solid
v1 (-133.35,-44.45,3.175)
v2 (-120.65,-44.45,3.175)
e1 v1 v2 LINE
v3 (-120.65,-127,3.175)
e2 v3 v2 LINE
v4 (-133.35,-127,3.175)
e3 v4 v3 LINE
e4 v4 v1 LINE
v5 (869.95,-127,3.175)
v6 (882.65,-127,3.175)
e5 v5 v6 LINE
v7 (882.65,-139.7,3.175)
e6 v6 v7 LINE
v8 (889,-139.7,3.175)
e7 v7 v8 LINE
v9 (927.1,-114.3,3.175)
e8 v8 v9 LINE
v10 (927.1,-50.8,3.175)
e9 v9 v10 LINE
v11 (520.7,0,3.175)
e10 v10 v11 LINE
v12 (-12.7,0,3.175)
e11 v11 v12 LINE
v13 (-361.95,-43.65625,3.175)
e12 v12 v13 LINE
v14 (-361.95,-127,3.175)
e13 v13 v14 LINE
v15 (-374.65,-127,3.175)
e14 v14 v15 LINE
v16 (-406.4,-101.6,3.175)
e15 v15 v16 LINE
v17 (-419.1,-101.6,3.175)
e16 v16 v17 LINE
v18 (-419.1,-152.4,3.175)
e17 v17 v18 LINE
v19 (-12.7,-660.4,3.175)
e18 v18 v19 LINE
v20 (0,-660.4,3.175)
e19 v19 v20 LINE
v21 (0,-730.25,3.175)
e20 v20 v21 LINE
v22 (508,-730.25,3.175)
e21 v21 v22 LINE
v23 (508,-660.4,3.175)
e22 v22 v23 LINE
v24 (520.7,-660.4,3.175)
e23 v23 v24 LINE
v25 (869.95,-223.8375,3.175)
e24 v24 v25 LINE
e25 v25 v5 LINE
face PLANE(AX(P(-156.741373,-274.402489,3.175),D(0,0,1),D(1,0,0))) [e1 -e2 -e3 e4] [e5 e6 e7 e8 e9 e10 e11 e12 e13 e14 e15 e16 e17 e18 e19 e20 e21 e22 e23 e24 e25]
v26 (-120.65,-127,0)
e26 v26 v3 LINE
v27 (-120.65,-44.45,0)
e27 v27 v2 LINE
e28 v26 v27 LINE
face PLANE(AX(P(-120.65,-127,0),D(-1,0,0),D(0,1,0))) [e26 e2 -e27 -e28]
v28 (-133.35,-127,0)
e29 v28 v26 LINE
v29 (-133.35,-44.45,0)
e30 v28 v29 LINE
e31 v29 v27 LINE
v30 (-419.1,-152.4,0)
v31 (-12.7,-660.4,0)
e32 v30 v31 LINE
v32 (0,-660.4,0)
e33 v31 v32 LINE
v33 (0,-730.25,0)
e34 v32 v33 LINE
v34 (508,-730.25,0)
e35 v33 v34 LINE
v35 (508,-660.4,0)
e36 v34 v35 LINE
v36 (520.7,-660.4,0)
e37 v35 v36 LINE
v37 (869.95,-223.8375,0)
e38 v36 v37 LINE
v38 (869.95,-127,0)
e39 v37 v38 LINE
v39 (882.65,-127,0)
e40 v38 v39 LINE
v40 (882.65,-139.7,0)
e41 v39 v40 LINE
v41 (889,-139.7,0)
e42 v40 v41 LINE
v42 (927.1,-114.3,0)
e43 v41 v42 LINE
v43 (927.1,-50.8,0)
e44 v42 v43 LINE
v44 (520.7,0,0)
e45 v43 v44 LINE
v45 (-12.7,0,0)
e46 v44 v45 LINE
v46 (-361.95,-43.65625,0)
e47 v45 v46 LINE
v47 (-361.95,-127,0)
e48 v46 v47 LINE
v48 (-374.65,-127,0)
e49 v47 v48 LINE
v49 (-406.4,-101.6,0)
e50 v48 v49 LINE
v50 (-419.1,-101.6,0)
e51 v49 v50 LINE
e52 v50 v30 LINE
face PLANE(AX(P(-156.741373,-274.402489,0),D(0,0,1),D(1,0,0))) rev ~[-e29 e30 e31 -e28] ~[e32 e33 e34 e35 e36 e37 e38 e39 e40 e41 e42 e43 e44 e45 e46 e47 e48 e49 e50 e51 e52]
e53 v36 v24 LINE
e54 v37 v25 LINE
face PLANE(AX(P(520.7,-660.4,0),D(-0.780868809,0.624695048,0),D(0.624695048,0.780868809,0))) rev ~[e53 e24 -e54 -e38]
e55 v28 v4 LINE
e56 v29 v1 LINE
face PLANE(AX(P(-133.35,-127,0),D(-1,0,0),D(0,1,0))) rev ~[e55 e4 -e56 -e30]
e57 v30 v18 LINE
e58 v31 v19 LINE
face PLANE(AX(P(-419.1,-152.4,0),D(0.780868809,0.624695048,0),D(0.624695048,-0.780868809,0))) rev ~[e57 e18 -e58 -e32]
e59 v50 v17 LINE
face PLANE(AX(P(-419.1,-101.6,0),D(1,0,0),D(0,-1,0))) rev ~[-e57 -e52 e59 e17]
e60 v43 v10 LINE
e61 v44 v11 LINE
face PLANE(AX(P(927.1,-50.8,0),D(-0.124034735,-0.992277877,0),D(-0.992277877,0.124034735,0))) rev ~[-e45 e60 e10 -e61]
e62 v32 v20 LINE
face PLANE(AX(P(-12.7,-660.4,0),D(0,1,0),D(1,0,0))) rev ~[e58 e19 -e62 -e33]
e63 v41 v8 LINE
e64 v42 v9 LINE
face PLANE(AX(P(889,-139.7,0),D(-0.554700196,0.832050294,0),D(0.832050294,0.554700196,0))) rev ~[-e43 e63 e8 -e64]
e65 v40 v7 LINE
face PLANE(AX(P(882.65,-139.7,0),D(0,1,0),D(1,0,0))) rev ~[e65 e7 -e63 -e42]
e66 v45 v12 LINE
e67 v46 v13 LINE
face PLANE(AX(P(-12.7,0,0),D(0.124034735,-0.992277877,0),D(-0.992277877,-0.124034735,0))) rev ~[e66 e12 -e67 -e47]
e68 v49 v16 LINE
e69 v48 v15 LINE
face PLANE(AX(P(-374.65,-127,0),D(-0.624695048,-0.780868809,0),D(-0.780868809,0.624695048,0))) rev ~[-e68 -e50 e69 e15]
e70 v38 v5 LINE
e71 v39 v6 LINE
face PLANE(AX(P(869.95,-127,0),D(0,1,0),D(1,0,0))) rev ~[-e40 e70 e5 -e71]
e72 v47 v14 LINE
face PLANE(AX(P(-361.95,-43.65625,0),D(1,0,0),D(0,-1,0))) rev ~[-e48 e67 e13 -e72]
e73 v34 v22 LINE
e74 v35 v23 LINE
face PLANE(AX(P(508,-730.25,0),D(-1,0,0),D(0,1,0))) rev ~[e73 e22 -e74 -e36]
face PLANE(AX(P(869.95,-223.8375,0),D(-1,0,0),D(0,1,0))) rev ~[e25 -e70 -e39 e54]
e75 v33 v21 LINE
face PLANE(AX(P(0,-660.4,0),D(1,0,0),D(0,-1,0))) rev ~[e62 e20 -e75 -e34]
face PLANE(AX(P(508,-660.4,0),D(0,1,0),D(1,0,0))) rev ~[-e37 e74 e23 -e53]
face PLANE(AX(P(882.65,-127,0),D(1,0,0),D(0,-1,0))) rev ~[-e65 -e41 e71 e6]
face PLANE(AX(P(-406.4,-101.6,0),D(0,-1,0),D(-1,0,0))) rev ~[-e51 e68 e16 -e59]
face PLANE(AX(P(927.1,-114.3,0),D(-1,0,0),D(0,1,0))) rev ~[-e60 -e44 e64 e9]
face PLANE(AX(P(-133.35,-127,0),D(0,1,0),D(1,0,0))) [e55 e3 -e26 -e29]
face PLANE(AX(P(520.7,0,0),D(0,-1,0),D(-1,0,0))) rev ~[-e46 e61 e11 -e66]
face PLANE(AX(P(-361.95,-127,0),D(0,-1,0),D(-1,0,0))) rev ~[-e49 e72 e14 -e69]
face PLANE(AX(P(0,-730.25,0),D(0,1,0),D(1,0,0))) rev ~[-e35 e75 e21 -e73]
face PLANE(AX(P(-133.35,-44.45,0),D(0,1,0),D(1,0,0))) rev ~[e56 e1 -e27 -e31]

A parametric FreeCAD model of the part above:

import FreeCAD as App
import Part
import Sketcher
Q = App.Units.Quantity

doc = App.newDocument("Part")
body = doc.addObject("PartDesign::Body", "Body")

sketch1 = doc.addObject("Sketcher::SketchObject", "Sketch")
body.addObject(sketch1)
sketch1.AttachmentSupport = (doc.XY_Plane, [""])
sketch1.MapMode = "FlatFace"
sketch1.addGeometry([
    Part.LineSegment(App.Vector(-419, -152, 0), App.Vector(-13, -660, 0)),
    Part.LineSegment(App.Vector(-13, -660, 0), App.Vector(0, -660, 0)),
    Part.LineSegment(App.Vector(0, -660, 0), App.Vector(0, -730, 0)),
    Part.LineSegment(App.Vector(0, -730, 0), App.Vector(508, -730, 0)),
    Part.LineSegment(App.Vector(508, -730, 0), App.Vector(508, -660, 0)),
    Part.LineSegment(App.Vector(508, -660, 0), App.Vector(521, -660, 0)),
    Part.LineSegment(App.Vector(521, -660, 0), App.Vector(870, -224, 0)),
    Part.LineSegment(App.Vector(870, -224, 0), App.Vector(870, -127, 0)),
    Part.LineSegment(App.Vector(870, -127, 0), App.Vector(883, -127, 0)),
    Part.LineSegment(App.Vector(883, -127, 0), App.Vector(883, -140, 0)),
    Part.LineSegment(App.Vector(883, -140, 0), App.Vector(889, -140, 0)),
    Part.LineSegment(App.Vector(889, -140, 0), App.Vector(927, -114, 0)),
    Part.LineSegment(App.Vector(927, -114, 0), App.Vector(927, -51, 0)),
    Part.LineSegment(App.Vector(927, -51, 0), App.Vector(521, 0, 0)),
    Part.LineSegment(App.Vector(521, 0, 0), App.Vector(-13, 0, 0)),
    Part.LineSegment(App.Vector(-13, 0, 0), App.Vector(-362, -44, 0)),
    Part.LineSegment(App.Vector(-362, -44, 0), App.Vector(-362, -127, 0)),
    Part.LineSegment(App.Vector(-362, -127, 0), App.Vector(-375, -127, 0)),
    Part.LineSegment(App.Vector(-375, -127, 0), App.Vector(-406, -102, 0)),
    Part.LineSegment(App.Vector(-406, -102, 0), App.Vector(-419, -102, 0)),
    Part.LineSegment(App.Vector(-419, -102, 0), App.Vector(-419, -152, 0)),
    Part.LineSegment(App.Vector(-121, -127, 0), App.Vector(-133, -127, 0)),
    Part.LineSegment(App.Vector(-133, -127, 0), App.Vector(-133, -44, 0)),
    Part.LineSegment(App.Vector(-133, -44, 0), App.Vector(-121, -44, 0)),
    Part.LineSegment(App.Vector(-121, -44, 0), App.Vector(-121, -127, 0)),
], False)
sketch1.addConstraint([
    Sketcher.Constraint("Coincident", 0, 2, 1, 1),
    Sketcher.Constraint("Coincident", 1, 2, 2, 1),
    Sketcher.Constraint("Coincident", 2, 2, 3, 1),
    Sketcher.Constraint("Coincident", 3, 2, 4, 1),
    Sketcher.Constraint("Coincident", 4, 2, 5, 1),
    Sketcher.Constraint("Coincident", 5, 2, 6, 1),
    Sketcher.Constraint("Coincident", 6, 2, 7, 1),
    Sketcher.Constraint("Coincident", 7, 2, 8, 1),
    Sketcher.Constraint("Coincident", 8, 2, 9, 1),
    Sketcher.Constraint("Coincident", 9, 2, 10, 1),
    Sketcher.Constraint("Coincident", 10, 2, 11, 1),
    Sketcher.Constraint("Coincident", 11, 2, 12, 1),
    Sketcher.Constraint("Coincident", 12, 2, 13, 1),
    Sketcher.Constraint("Coincident", 13, 2, 14, 1),
    Sketcher.Constraint("Coincident", 14, 2, 15, 1),
    Sketcher.Constraint("Coincident", 15, 2, 16, 1),
    Sketcher.Constraint("Coincident", 16, 2, 17, 1),
    Sketcher.Constraint("Coincident", 17, 2, 18, 1),
    Sketcher.Constraint("Coincident", 18, 2, 19, 1),
    Sketcher.Constraint("Coincident", 19, 2, 20, 1),
    Sketcher.Constraint("Coincident", 20, 2, 0, 1),
    Sketcher.Constraint("Coincident", 21, 2, 22, 1),
    Sketcher.Constraint("Coincident", 22, 2, 23, 1),
    Sketcher.Constraint("Coincident", 23, 2, 24, 1),
    Sketcher.Constraint("Coincident", 24, 2, 21, 1),
    Sketcher.Constraint("Horizontal", 1),
    Sketcher.Constraint("Vertical", 2),
    Sketcher.Constraint("Horizontal", 3),
    Sketcher.Constraint("Vertical", 4),
    Sketcher.Constraint("Horizontal", 5),
    Sketcher.Constraint("Vertical", 7),
    Sketcher.Constraint("Horizontal", 8),
    Sketcher.Constraint("Vertical", 9),
    Sketcher.Constraint("Horizontal", 10),
    Sketcher.Constraint("Vertical", 12),
    Sketcher.Constraint("Horizontal", 14),
    Sketcher.Constraint("Vertical", 16),
    Sketcher.Constraint("Horizontal", 17),
    Sketcher.Constraint("Horizontal", 19),
    Sketcher.Constraint("Vertical", 20),
    Sketcher.Constraint("Horizontal", 21),
    Sketcher.Constraint("Vertical", 22),
    Sketcher.Constraint("Horizontal", 23),
    Sketcher.Constraint("Vertical", 24),
    Sketcher.Constraint("PointOnObject", 1, 2, -2),
    Sketcher.Constraint("PointOnObject", 13, 2, -1),
    Sketcher.Constraint("Perpendicular", 6, 18),
    Sketcher.Constraint("Horizontal", 1, 2, 4, 2),
    Sketcher.Constraint("Horizontal", 8, 2, 16, 2),
    Sketcher.Constraint("Horizontal", 17, 2, 21, 2),
    Sketcher.Constraint("Vertical", 5, 2, 13, 2),
    Sketcher.Constraint("Vertical", 0, 2, 14, 2),
    Sketcher.Constraint("Equal", 1, 5),
    Sketcher.Constraint("Equal", 5, 8),
    Sketcher.Constraint("Equal", 8, 17),
    Sketcher.Constraint("Equal", 17, 19),
    Sketcher.Constraint("Equal", 19, 21),
    Sketcher.Constraint("Equal", 23, 9),
    Sketcher.Constraint("DistanceX", 3, 1, 3, 2, Q("20 in")),
    Sketcher.Constraint("DistanceX", 14, 2, 14, 1, Q("21 in")),
    Sketcher.Constraint("DistanceY", 20, 2, 20, 1, Q("2 in")),
    Sketcher.Constraint("DistanceY", 12, 1, 12, 2, Q("2.5 in")),
    Sketcher.Constraint("DistanceY", 0, 2, -1, 1, Q("26 in")),
    Sketcher.Constraint("DistanceY", 7, 2, -1, 1, Q("5 in")),
    Sketcher.Constraint("DistanceX", -1, 1, 10, 2, Q("35 in")),
    Sketcher.Constraint("DistanceY", 12, 2, -1, 1, Q("2 in")),
    Sketcher.Constraint("DistanceX", 18, 2, -1, 1, Q("16 in")),
    Sketcher.Constraint("DistanceY", 18, 2, -1, 1, Q("4 in")),
    Sketcher.Constraint("DistanceX", 13, 2, 12, 2, Q("16 in")),
    Sketcher.Constraint("DistanceX", 16, 2, 21, 2, Q("9 in")),
    Sketcher.Constraint("DistanceX", 10, 1, 10, 2, Q("0.25 in")),
    Sketcher.Constraint("DistanceY", 2, 2, 2, 1, Q("2.75 in")),
    Sketcher.Constraint("DistanceY", 22, 1, 22, 2, Q("3.25 in")),
    Sketcher.Constraint("DistanceY", 7, 1, 7, 2, Q("3.8125 in")),
    Sketcher.Constraint("DistanceY", 16, 2, 16, 1, Q("3.28125 in")),
])
pad1 = doc.addObject("PartDesign::Pad", "Pad")
body.addObject(pad1)
pad1.Profile = sketch1
pad1.Length = Q("0.125 in")

doc.recompute()
